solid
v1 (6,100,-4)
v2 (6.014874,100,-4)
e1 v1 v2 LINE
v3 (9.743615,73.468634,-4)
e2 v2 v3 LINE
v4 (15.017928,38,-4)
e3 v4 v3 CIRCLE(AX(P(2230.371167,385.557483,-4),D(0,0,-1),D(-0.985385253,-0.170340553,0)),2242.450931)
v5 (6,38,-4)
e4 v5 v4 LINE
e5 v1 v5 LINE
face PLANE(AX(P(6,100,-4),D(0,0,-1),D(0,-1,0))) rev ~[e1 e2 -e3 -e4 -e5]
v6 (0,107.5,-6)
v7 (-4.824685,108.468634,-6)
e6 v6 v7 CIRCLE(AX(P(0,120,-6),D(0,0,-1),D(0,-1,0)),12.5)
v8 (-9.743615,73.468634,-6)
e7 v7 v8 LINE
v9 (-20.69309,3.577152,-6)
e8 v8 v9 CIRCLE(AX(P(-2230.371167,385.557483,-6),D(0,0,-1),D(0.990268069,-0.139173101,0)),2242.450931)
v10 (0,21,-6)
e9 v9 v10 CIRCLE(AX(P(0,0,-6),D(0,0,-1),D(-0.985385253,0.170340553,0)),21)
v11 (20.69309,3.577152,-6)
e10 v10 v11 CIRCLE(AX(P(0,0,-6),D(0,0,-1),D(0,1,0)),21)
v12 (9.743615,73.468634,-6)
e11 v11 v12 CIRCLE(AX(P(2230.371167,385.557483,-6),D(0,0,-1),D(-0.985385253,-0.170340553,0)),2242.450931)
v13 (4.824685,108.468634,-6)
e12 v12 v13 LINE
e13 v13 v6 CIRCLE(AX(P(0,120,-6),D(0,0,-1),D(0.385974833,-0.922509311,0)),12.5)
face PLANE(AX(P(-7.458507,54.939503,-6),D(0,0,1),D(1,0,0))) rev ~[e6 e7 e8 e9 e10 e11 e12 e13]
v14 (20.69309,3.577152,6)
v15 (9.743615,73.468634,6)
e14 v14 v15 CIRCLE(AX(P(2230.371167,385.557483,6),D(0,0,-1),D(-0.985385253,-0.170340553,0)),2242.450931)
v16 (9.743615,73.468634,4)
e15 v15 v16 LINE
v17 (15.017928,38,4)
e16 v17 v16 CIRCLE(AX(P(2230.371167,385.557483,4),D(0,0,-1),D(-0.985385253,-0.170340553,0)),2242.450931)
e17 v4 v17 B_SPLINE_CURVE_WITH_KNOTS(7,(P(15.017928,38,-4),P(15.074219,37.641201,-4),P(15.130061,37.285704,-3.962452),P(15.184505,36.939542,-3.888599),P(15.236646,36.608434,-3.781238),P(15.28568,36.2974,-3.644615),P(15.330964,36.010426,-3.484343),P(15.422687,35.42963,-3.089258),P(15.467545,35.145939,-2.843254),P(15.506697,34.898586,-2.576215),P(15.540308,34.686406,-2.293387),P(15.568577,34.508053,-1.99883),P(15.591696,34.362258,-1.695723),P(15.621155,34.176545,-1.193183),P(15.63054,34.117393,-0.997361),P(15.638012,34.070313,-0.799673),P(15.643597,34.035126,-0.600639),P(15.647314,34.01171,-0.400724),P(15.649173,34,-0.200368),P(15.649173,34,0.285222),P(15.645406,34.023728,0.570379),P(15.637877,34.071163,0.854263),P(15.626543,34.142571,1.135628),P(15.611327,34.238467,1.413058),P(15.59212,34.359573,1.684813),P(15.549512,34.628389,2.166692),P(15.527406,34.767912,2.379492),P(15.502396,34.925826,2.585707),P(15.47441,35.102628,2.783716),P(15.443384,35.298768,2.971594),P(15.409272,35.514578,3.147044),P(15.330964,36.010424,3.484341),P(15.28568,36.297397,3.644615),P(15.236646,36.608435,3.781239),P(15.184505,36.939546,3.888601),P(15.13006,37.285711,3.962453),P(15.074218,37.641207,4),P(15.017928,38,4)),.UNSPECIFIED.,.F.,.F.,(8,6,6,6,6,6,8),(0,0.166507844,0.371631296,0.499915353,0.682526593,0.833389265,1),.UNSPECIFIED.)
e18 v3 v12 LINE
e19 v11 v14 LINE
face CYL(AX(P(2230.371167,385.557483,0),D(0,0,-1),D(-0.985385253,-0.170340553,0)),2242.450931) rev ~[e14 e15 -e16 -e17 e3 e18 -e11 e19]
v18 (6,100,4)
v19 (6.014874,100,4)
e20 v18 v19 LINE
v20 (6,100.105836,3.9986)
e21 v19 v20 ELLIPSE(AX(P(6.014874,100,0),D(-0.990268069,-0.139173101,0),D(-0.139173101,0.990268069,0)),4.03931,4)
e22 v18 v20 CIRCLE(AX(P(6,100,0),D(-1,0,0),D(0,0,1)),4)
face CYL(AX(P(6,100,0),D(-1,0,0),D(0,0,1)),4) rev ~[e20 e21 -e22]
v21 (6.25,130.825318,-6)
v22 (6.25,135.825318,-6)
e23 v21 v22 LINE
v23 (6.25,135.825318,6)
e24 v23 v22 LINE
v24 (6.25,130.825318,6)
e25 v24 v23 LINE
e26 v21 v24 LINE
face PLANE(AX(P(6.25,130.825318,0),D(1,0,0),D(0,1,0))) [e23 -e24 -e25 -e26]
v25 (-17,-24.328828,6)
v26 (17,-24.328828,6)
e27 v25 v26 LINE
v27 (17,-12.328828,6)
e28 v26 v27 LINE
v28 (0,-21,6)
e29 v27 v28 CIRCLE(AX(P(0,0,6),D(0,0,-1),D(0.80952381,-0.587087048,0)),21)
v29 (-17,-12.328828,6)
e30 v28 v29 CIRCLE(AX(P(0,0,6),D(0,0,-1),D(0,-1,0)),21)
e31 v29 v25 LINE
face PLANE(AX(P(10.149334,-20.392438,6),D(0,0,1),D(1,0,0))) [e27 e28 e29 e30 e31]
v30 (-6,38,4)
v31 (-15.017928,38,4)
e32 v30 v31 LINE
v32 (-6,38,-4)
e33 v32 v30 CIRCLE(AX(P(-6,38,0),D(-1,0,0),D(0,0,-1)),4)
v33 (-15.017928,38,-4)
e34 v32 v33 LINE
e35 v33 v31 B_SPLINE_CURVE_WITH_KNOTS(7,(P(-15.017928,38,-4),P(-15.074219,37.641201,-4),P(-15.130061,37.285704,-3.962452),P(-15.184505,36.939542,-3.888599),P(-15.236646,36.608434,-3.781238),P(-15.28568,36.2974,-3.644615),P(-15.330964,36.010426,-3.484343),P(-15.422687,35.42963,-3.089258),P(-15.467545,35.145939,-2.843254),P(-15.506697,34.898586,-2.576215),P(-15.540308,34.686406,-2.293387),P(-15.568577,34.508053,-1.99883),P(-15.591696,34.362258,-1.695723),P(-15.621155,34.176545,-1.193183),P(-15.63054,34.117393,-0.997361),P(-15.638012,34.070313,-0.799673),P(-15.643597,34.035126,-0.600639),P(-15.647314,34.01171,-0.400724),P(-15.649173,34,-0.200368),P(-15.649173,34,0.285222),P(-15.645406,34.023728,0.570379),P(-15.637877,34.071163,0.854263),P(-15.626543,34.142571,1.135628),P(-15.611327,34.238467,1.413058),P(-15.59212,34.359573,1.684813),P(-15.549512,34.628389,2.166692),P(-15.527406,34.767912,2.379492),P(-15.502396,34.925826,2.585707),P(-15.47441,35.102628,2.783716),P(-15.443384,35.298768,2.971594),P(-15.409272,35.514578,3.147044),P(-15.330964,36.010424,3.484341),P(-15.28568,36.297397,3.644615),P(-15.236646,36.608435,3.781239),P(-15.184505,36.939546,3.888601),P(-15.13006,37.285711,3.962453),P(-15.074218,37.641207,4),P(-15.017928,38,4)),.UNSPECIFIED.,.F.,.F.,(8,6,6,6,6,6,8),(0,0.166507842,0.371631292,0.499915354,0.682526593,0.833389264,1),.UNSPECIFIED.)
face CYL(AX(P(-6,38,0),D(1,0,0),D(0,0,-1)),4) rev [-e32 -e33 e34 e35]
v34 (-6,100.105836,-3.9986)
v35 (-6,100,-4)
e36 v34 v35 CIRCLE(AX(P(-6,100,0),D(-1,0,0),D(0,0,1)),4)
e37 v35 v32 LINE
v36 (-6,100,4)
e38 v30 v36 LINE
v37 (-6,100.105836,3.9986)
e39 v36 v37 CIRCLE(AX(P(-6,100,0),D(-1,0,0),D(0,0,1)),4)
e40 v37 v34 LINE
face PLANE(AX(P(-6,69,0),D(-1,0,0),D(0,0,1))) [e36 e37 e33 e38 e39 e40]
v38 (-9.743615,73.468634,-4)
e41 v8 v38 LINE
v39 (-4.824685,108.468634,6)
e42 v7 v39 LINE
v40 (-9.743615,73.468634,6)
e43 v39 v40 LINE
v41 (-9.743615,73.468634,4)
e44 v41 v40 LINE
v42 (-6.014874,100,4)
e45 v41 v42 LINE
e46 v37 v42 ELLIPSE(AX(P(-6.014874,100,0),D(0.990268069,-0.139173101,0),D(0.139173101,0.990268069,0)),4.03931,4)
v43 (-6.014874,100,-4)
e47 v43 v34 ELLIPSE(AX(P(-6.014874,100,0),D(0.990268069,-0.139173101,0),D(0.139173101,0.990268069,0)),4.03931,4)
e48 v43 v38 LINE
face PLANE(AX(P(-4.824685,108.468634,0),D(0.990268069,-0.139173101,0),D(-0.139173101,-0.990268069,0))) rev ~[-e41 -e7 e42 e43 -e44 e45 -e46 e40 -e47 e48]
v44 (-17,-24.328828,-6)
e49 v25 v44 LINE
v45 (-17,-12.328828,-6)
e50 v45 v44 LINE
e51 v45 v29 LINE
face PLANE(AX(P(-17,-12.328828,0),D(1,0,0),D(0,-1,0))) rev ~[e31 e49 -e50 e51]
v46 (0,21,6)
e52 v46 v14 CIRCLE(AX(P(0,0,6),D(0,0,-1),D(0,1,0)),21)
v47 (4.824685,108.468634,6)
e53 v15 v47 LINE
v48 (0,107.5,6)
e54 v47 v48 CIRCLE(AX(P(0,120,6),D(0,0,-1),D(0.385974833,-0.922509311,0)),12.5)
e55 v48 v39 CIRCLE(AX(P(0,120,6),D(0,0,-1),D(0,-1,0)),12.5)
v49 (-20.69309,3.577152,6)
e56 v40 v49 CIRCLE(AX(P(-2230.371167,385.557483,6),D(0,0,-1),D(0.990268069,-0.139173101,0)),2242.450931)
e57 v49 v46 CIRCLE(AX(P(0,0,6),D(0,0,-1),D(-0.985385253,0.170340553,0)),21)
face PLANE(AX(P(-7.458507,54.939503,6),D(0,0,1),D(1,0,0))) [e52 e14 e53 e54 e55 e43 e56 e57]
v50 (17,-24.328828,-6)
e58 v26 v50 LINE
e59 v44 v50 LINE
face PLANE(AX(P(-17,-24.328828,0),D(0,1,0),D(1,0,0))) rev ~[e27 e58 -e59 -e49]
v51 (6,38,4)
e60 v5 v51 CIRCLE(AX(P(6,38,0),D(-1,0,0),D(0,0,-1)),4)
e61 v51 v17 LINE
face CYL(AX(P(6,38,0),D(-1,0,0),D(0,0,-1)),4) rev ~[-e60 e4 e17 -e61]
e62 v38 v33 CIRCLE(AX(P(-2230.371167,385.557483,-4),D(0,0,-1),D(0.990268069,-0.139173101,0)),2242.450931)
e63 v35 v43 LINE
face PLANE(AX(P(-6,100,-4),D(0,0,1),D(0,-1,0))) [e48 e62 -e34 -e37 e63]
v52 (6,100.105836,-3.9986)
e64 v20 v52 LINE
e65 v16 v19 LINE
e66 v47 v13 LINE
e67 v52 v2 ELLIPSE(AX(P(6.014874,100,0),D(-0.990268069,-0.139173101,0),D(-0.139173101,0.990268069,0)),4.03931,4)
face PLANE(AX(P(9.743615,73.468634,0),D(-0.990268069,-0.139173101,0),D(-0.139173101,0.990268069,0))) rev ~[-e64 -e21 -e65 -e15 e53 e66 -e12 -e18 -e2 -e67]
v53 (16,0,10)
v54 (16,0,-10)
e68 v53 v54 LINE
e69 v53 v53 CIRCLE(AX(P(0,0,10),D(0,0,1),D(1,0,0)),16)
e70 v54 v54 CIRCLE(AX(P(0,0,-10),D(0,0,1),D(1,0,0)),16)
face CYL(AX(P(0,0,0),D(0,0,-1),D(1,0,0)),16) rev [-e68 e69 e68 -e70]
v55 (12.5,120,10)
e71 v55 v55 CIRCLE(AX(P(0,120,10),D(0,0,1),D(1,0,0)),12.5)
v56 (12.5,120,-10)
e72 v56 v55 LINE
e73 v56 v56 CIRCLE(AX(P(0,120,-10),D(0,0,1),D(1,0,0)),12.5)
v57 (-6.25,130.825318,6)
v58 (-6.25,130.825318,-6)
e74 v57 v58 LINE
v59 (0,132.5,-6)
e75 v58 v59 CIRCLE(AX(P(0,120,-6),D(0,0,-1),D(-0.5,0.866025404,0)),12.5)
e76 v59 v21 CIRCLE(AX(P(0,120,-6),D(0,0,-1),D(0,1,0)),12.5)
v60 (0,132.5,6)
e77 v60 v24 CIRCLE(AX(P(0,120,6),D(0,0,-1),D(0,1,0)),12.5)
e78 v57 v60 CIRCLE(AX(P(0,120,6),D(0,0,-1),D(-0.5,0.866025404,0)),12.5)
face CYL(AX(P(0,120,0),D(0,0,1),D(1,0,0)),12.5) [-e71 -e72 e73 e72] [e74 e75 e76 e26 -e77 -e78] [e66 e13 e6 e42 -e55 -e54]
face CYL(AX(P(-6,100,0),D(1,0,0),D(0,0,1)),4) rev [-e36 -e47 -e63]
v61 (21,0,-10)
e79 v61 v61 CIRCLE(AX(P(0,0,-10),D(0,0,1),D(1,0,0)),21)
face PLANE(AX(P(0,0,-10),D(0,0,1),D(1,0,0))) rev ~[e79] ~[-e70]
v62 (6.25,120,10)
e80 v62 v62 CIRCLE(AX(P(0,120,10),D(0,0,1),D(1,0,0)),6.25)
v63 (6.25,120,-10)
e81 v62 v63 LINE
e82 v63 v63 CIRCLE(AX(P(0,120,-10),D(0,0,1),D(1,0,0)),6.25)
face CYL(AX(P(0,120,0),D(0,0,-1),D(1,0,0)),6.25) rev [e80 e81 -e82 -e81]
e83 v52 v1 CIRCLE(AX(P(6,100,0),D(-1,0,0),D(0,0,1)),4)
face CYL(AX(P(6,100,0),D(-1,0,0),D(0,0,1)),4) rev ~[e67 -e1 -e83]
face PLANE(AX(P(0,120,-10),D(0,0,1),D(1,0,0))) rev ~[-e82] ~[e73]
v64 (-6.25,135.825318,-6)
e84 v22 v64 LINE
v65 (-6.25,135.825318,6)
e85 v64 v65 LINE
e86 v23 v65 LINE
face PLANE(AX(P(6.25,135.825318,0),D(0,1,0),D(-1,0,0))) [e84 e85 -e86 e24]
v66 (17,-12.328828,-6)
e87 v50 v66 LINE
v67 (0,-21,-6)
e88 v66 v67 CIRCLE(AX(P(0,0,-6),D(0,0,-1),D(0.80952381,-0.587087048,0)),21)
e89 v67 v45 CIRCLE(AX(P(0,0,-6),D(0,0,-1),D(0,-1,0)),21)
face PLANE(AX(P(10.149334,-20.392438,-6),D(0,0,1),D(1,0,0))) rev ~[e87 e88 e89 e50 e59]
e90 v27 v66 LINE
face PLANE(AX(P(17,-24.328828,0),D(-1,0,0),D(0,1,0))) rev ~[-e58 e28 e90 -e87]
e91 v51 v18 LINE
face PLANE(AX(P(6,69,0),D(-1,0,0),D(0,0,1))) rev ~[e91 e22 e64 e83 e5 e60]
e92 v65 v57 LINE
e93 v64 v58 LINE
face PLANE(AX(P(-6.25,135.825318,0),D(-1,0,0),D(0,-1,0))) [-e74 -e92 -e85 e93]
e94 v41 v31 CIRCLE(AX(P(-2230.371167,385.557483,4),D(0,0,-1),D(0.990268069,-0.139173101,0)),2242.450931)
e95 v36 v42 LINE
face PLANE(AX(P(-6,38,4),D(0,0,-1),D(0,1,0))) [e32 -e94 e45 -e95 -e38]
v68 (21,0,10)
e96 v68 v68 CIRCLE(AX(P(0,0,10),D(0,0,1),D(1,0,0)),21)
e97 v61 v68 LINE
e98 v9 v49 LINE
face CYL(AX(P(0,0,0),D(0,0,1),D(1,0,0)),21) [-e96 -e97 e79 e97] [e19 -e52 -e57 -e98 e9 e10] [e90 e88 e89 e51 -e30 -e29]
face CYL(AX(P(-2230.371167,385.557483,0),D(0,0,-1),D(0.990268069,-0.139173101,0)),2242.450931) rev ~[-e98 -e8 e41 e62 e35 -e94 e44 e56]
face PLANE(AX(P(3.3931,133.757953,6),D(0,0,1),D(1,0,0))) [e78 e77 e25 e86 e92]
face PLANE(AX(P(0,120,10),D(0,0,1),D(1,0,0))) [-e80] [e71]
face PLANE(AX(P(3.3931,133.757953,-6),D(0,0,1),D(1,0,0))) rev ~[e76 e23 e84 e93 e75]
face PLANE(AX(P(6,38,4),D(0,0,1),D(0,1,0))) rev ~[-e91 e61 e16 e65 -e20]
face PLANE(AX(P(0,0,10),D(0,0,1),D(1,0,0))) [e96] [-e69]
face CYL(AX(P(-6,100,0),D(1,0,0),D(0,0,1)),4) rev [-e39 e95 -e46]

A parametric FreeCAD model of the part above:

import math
import FreeCAD as App
import Part
import Sketcher

V = App.Vector
Q = App.Units.Quantity

doc = App.newDocument("Part")
params = doc.addObject("Spreadsheet::Sheet", "Params")
for row, (alias, value) in enumerate([
    ("sketch1_diameter", "42 mm"),
    ("sketch1_diameter2", "32 mm"),
    ("pad1_length", "20 mm"),
    ("sketch2_diameter", "25 mm"),
    ("sketch2_diameter2", "12.5 mm"),
    ("pad2_length", "20 mm"),
    ("sketch3_radius", "21 mm"),
    ("sketch3_radius2", "12.5 mm"),
    ("sketch3_width", "34 mm"),
    ("sketch3_height", "12 mm"),
    ("sketch3_height2", "5 mm"),
    ("pad3_length", "12 mm"),
    ("sketch4_radius", "4 mm"),
    ("sketch4_width", "62 mm"),
    ("sketch5_radius", "4 mm"),
    ("sketch5_width", "62 mm"),
], start=1):
    params.set(f"A{row}", alias)
    params.set(f"B{row}", "=" + value)
    params.setAlias(f"B{row}", alias)

body = doc.addObject("PartDesign::Body", "Body")

sketch1 = body.newObject("Sketcher::SketchObject", "Sketch")
sketch1.AttachmentSupport = (doc.getObject("XY_Plane"), [""])
sketch1.MapMode = "FlatFace"
sketch1.addGeometry([
    Part.Circle(V(0, 0, 0), V(0, 0, 1), 21),
    Part.Circle(V(0, 0, 0), V(0, 0, 1), 16),
], False)
sketch1.addConstraint([
    Sketcher.Constraint("Coincident", 0, 3, -1, 1),
    Sketcher.Constraint("Coincident", 1, 3, -1, 1),
    Sketcher.Constraint("Diameter", 0, 42.0),
    Sketcher.Constraint("Diameter", 1, 32.0),
])
sketch1.setExpression("Constraints[2]", "Params.sketch1_diameter")
sketch1.setExpression("Constraints[3]", "Params.sketch1_diameter2")
pad1 = body.newObject("PartDesign::Pad", "Pad")
pad1.Profile = sketch1
pad1.setExpression("Length", "Params.pad1_length")
pad1.Midplane = True
body2 = doc.addObject("PartDesign::Body", "Body001")

sketch2 = body2.newObject("Sketcher::SketchObject", "Sketch001")
sketch2.AttachmentSupport = (doc.getObject("XY_Plane001"), [""])
sketch2.MapMode = "FlatFace"
sketch2.addGeometry([
    Part.Circle(V(0, 120, 0), V(0, 0, 1), 12),
    Part.Circle(V(0, 120, 0), V(0, 0, 1), 6),
], False)
sketch2.addConstraint([
    Sketcher.Constraint("Coincident", 1, 3, 0, 3),
    Sketcher.Constraint("PointOnObject", 0, 3, -2),
    Sketcher.Constraint("Diameter", 0, 25.0),
    Sketcher.Constraint("Diameter", 1, 12.5),
    Sketcher.Constraint("DistanceY", -1, 1, 0, 3, 120.0),
])
sketch2.setExpression("Constraints[2]", "Params.sketch2_diameter")
sketch2.setExpression("Constraints[3]", "Params.sketch2_diameter2")
pad2 = body2.newObject("PartDesign::Pad", "Pad001")
pad2.Profile = sketch2
pad2.setExpression("Length", "Params.pad2_length")
pad2.Midplane = True
body.AllowCompound = True
doc.recompute()

boolean = body.newObject("PartDesign::Boolean", "Boolean")
boolean.Type = "Fuse"
boolean.addObjects([body2])

sketch3 = body.newObject("Sketcher::SketchObject", "Sketch002")
sketch3.AttachmentSupport = (doc.getObject("XY_Plane"), [""])
sketch3.MapMode = "FlatFace"
sketch3.addGeometry([
    Part.ArcOfCircle(Part.Circle(V(0, 120, 0), V(0, 0, 1), 12.5), math.radians(-113), math.radians(-90)),
    Part.LineSegment(V(-4.8, 108.5, 0), V(-9.7, 73.5, 0)),
    Part.ArcOfCircle(Part.Circle(V(-2230.4, 385.6, 0), V(0, 0, 1), 2242.5), math.radians(-9.81), math.radians(-8)),
    Part.ArcOfCircle(Part.Circle(V(0, 0, 0), V(0, 0, 1), 21), math.radians(90), math.radians(170)),
    Part.ArcOfCircle(Part.Circle(V(0, 0, 0), V(0, 0, 1), 21), math.radians(10), math.radians(90)),
    Part.ArcOfCircle(Part.Circle(V(2230.4, 385.6, 0), V(0, 0, 1), 2242.5), math.radians(-172), math.radians(-170.19)),
    Part.LineSegment(V(9.7, 73.5, 0), V(4.8, 108.5, 0)),
    Part.ArcOfCircle(Part.Circle(V(0, 120, 0), V(0, 0, 1), 12.5), math.radians(-90), math.radians(-67)),
    Part.ArcOfCircle(Part.Circle(V(0, 0, 0), V(0, 0, 1), 21), math.radians(-90), math.radians(-36)),
    Part.ArcOfCircle(Part.Circle(V(0, 0, 0), V(0, 0, 1), 21), math.radians(-144), math.radians(-90)),
    Part.LineSegment(V(-17, -12.3, 0), V(-17, -24.3, 0)),
    Part.LineSegment(V(-17, -24.3, 0), V(17, -24.3, 0)),
    Part.LineSegment(V(17, -24.3, 0), V(17, -12.3, 0)),
    Part.LineSegment(V(6.2, 135.8, 0), V(-6.2, 135.8, 0)),
    Part.LineSegment(V(-6.2, 135.8, 0), V(-6.2, 130.8, 0)),
    Part.ArcOfCircle(Part.Circle(V(0, 120, 0), V(0, 0, 1), 12.5), math.radians(90), math.radians(120)),
    Part.ArcOfCircle(Part.Circle(V(0, 120, 0), V(0, 0, 1), 12.5), math.radians(60), math.radians(90)),
    Part.LineSegment(V(6.2, 130.8, 0), V(6.2, 135.8, 0)),
], False)
sketch3.addConstraint([
    Sketcher.Constraint("Coincident", 0, 1, 1, 1),
    Sketcher.Constraint("Tangent", 1, 2, 2, 2),
    Sketcher.Constraint("Tangent", 2, 1, 3, 2),
    Sketcher.Constraint("Tangent", 3, 1, 4, 2),
    Sketcher.Constraint("Tangent", 4, 1, 5, 2),
    Sketcher.Constraint("Tangent", 5, 1, 6, 1),
    Sketcher.Constraint("Coincident", 6, 2, 7, 2),
    Sketcher.Constraint("Tangent", 7, 1, 0, 2),
    Sketcher.Constraint("Tangent", 8, 1, 9, 2),
    Sketcher.Constraint("Coincident", 9, 1, 10, 1),
    Sketcher.Constraint("Coincident", 10, 2, 11, 1),
    Sketcher.Constraint("Coincident", 11, 2, 12, 1),
    Sketcher.Constraint("Coincident", 12, 2, 8, 2),
    Sketcher.Constraint("Coincident", 13, 2, 14, 1),
    Sketcher.Constraint("Coincident", 14, 2, 15, 2),
    Sketcher.Constraint("Tangent", 15, 1, 16, 2),
    Sketcher.Constraint("Coincident", 16, 1, 17, 1),
    Sketcher.Constraint("Coincident", 17, 2, 13, 1),
    Sketcher.Constraint("Vertical", 10),
    Sketcher.Constraint("Horizontal", 11),
    Sketcher.Constraint("Vertical", 12),
    Sketcher.Constraint("Horizontal", 13),
    Sketcher.Constraint("Vertical", 14),
    Sketcher.Constraint("Vertical", 17),
    Sketcher.Constraint("Coincident", 3, 3, -1, 1),
    Sketcher.Constraint("Coincident", 8, 3, -1, 1),
    Sketcher.Constraint("Coincident", 15, 3, 0, 3),
    Sketcher.Constraint("Equal", 3, 4),
    Sketcher.Constraint("Equal", 2, 5),
    Sketcher.Constraint("Equal", 0, 7),
    Sketcher.Constraint("Equal", 4, 8),
    Sketcher.Constraint("Equal", 8, 9),
    Sketcher.Constraint("Equal", 7, 15),
    Sketcher.Constraint("Equal", 15, 16),
    Sketcher.Constraint("Symmetric", 0, 1, 6, 2, -2),
    Sketcher.Constraint("PointOnObject", 3, 1, -2),
    Sketcher.Constraint("PointOnObject", 7, 1, -2),
    Sketcher.Constraint("PointOnObject", 8, 1, -2),
    Sketcher.Constraint("PointOnObject", 15, 1, -2),
    Sketcher.Constraint("Horizontal", 2, 3, 5, 3),
    Sketcher.Constraint("Horizontal", 9, 1, 12, 2),
    Sketcher.Constraint("Horizontal", 14, 2, 16, 1),
    Sketcher.Constraint("Radius", 3, 21.0),
    Sketcher.Constraint("Radius", 0, 12.5),
    Sketcher.Constraint("DistanceX", 11, 1, 11, 2, 34.0),
    Sketcher.Constraint("DistanceY", 10, 2, 10, 1, 12.0),
    Sketcher.Constraint("DistanceY", 14, 2, 14, 1, 5.0),
    Sketcher.Constraint("Angle", 1, Q("-98 deg")),
    Sketcher.Constraint("DistanceX", 13, 2, 13, 1, 12.5),
    Sketcher.Constraint("DistanceY", -1, 1, 0, 3, 120.0),
    Sketcher.Constraint("DistanceY", 1, 2, 0, 1, 35.0),
    Sketcher.Constraint("Radius", 2, 2242.450931),
])
sketch3.setExpression("Constraints[42]", "Params.sketch3_radius")
sketch3.setExpression("Constraints[43]", "Params.sketch3_radius2")
sketch3.setExpression("Constraints[44]", "Params.sketch3_width")
sketch3.setExpression("Constraints[45]", "Params.sketch3_height")
sketch3.setExpression("Constraints[46]", "Params.sketch3_height2")
pad3 = body.newObject("PartDesign::Pad", "Pad002")
pad3.Profile = sketch3
pad3.setExpression("Length", "Params.pad3_length")
pad3.Midplane = True

sketch4 = body.newObject("Sketcher::SketchObject", "Sketch003")
sketch4.AttachmentSupport = (doc.getObject("YZ_Plane"), [""])
sketch4.MapMode = "FlatFace"
sketch4.AttachmentOffset = App.Placement(V(0, 0, -6), App.Rotation())
sketch4.addGeometry([
    Part.LineSegment(V(38, -4, 0), V(100, -4, 0)),
    Part.ArcOfCircle(Part.Circle(V(100, 0, 0), V(0, 0, 1), 4), math.radians(-90), math.radians(90)),
    Part.LineSegment(V(100, 4, 0), V(38, 4, 0)),
    Part.ArcOfCircle(Part.Circle(V(38, 0, 0), V(0, 0, 1), 4), math.radians(90), math.radians(270)),
], False)
sketch4.addConstraint([
    Sketcher.Constraint("Tangent", 0, 2, 1, 1),
    Sketcher.Constraint("Tangent", 1, 2, 2, 1),
    Sketcher.Constraint("Tangent", 2, 2, 3, 1),
    Sketcher.Constraint("Tangent", 3, 2, 0, 1),
    Sketcher.Constraint("Horizontal", 0),
    Sketcher.Constraint("Horizontal", 2),
    Sketcher.Constraint("PointOnObject", 1, 3, -1),
    Sketcher.Constraint("Radius", 1, 4.0),
    Sketcher.Constraint("DistanceX", 0, 1, 0, 2, 62.0),
    Sketcher.Constraint("DistanceX", -1, 1, 1, 3, 100.0),
])
sketch4.setExpression("Constraints[7]", "Params.sketch4_radius")
sketch4.setExpression("Constraints[8]", "Params.sketch4_width")
pocket1 = body.newObject("PartDesign::Pocket", "Pocket")
pocket1.Profile = sketch4
pocket1.Type = "ThroughAll"

sketch5 = body.newObject("Sketcher::SketchObject", "Sketch004")
sketch5.AttachmentSupport = (doc.getObject("YZ_Plane"), [""])
sketch5.MapMode = "FlatFace"
sketch5.AttachmentOffset = App.Placement(V(0, 0, 6), App.Rotation())
sketch5.addGeometry([
    Part.LineSegment(V(38, -4, 0), V(100, -4, 0)),
    Part.ArcOfCircle(Part.Circle(V(100, 0, 0), V(0, 0, 1), 4), math.radians(-90), math.radians(90)),
    Part.LineSegment(V(100, 4, 0), V(38, 4, 0)),
    Part.ArcOfCircle(Part.Circle(V(38, 0, 0), V(0, 0, 1), 4), math.radians(90), math.radians(270)),
], False)
sketch5.addConstraint([
    Sketcher.Constraint("Tangent", 0, 2, 1, 1),
    Sketcher.Constraint("Tangent", 1, 2, 2, 1),
    Sketcher.Constraint("Tangent", 2, 2, 3, 1),
    Sketcher.Constraint("Tangent", 3, 2, 0, 1),
    Sketcher.Constraint("Horizontal", 0),
    Sketcher.Constraint("Horizontal", 2),
    Sketcher.Constraint("PointOnObject", 1, 3, -1),
    Sketcher.Constraint("Radius", 1, 4.0),
    Sketcher.Constraint("DistanceX", 0, 1, 0, 2, 62.0),
    Sketcher.Constraint("DistanceX", -1, 1, 1, 3, 100.0),
])
sketch5.setExpression("Constraints[7]", "Params.sketch5_radius")
sketch5.setExpression("Constraints[8]", "Params.sketch5_width")
pocket2 = body.newObject("PartDesign::Pocket", "Pocket001")
pocket2.Profile = sketch5
pocket2.Type = "ThroughAll"
pocket2.Reversed = True

doc.recompute()
